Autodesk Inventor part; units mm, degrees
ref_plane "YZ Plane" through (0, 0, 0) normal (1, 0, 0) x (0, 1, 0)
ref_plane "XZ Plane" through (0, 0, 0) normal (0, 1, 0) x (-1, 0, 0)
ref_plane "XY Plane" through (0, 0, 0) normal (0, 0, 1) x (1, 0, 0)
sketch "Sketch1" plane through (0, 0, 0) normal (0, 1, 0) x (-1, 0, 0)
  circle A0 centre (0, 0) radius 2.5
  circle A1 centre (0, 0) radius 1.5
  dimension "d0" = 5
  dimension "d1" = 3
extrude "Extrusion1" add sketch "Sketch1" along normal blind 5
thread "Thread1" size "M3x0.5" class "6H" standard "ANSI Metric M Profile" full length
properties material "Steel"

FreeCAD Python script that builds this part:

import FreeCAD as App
import Part
import Sketcher
Q = App.Units.Quantity

doc = App.newDocument("Part")
body = doc.addObject("PartDesign::Body", "Body")

# Sketch on XZ plane
sketch1 = body.newObject("Sketcher::SketchObject", "Sketch")
sketch1.AttachmentSupport = (doc.getObject("XZ_Plane"), [""])
sketch1.MapMode = "FlatFace"
sketch1.addGeometry([
    Part.Circle(App.Vector(0, 0, 0), App.Vector(0, 0, 1), 2.5),
    Part.Circle(App.Vector(0, 0, 0), App.Vector(0, 0, 1), 1.5),
], False)
sketch1.addConstraint([
    Sketcher.Constraint("Coincident", 0, 3, -1, 1),
    Sketcher.Constraint("Coincident", 1, 3, -1, 1),
    Sketcher.Constraint("Diameter", 0, Q("5 mm")),
    Sketcher.Constraint("Diameter", 1, Q("3 mm")),
])
pad1 = body.newObject("PartDesign::Pad", "Pad")
pad1.Profile = sketch1
pad1.Length = 5
pad1.Reversed = True

doc.recompute()
